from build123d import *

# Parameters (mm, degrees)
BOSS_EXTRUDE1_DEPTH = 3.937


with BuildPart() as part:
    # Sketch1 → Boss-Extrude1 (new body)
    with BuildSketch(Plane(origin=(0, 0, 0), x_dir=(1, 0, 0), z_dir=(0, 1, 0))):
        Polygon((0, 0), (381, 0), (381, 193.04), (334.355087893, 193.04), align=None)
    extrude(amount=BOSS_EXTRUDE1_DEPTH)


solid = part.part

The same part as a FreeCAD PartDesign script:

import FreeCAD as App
import Part
import Sketcher
Q = App.Units.Quantity

doc = App.newDocument("Part")
body = doc.addObject("PartDesign::Body", "Body")

# Sketch on XZ plane
sketch1 = body.newObject("Sketcher::SketchObject", "Sketch")
sketch1.AttachmentSupport = (doc.getObject("XZ_Plane"), [""])
sketch1.MapMode = "FlatFace"
sketch1.addGeometry([
    Part.LineSegment(App.Vector(0, 0, 0), App.Vector(381, 0, 0)),
    Part.LineSegment(App.Vector(381, 0, 0), App.Vector(381, -193, 0)),
    Part.LineSegment(App.Vector(381, -193, 0), App.Vector(334, -193, 0)),
    Part.LineSegment(App.Vector(334, -193, 0), App.Vector(0, 0, 0)),
], False)
sketch1.addConstraint([
    Sketcher.Constraint("Coincident", 0, 2, 1, 1),
    Sketcher.Constraint("Coincident", 1, 2, 2, 1),
    Sketcher.Constraint("Coincident", 2, 2, 3, 1),
    Sketcher.Constraint("Coincident", 3, 2, 0, 1),
    Sketcher.Constraint("Horizontal", 0),
    Sketcher.Constraint("Vertical", 1),
    Sketcher.Constraint("Horizontal", 2),
    Sketcher.Constraint("Coincident", 3, 2, -1, 1),
    Sketcher.Constraint("DistanceX", 0, 1, 0, 2, Q("15 in")),
    Sketcher.Constraint("DistanceY", 1, 2, 1, 1, Q("7.6 in")),
    Sketcher.Constraint("Angle", 3, Q("150 deg")),
])
pad1 = body.newObject("PartDesign::Pad", "Pad")
pad1.Profile = sketch1
pad1.Length = Q("0.155 in")
pad1.Reversed = True

doc.recompute()
